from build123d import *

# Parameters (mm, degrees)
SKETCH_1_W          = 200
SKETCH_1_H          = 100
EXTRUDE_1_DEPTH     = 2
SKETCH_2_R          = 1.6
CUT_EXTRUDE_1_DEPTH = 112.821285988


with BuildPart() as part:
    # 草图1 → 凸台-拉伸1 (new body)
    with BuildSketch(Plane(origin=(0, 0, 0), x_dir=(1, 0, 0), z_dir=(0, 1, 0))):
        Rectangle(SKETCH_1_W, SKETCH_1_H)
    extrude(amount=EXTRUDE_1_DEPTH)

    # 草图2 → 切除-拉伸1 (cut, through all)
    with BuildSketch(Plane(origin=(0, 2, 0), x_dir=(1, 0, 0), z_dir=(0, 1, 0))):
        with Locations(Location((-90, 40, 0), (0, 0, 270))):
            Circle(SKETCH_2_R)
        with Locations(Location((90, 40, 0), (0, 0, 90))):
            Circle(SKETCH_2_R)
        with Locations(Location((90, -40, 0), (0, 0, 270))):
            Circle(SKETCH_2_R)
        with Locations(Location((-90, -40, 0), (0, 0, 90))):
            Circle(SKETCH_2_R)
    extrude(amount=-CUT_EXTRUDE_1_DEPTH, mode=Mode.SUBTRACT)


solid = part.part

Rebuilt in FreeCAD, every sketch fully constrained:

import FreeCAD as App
import Part
import Sketcher

V = App.Vector
Q = App.Units.Quantity

doc = App.newDocument("Part")
body = doc.addObject("PartDesign::Body", "Body")

sketch1 = body.newObject("Sketcher::SketchObject", "Sketch")
sketch1.AttachmentSupport = (doc.getObject("XZ_Plane"), [""])
sketch1.MapMode = "FlatFace"
sketch1.addGeometry(Part.LineSegment(V(-100, -50, 0), V(-100, 50, 0)), False)
sketch1.addGeometry(Part.LineSegment(V(-100, 50, 0), V(100, 50, 0)), False)
sketch1.addGeometry(Part.LineSegment(V(100, 50, 0), V(100, -50, 0)), False)
sketch1.addGeometry(Part.LineSegment(V(100, -50, 0), V(-100, -50, 0)), False)
sketch1.addConstraint(Sketcher.Constraint("Coincident", 0, 2, 1, 1))
sketch1.addConstraint(Sketcher.Constraint("Coincident", 1, 2, 2, 1))
sketch1.addConstraint(Sketcher.Constraint("Coincident", 2, 2, 3, 1))
sketch1.addConstraint(Sketcher.Constraint("Coincident", 3, 2, 0, 1))
sketch1.addConstraint(Sketcher.Constraint("Vertical", 0))
sketch1.addConstraint(Sketcher.Constraint("Horizontal", 1))
sketch1.addConstraint(Sketcher.Constraint("Vertical", 2))
sketch1.addConstraint(Sketcher.Constraint("Horizontal", 3))
sketch1.addConstraint(Sketcher.Constraint("Symmetric", 0, 2, 2, 2, -1, 1))
sketch1.addConstraint(Sketcher.Constraint("DistanceX", 1, 1, 1, 2, Q("200 mm")))
sketch1.addConstraint(Sketcher.Constraint("DistanceY", 0, 1, 0, 2, Q("100 mm")))
pad1 = body.newObject("PartDesign::Pad", "Pad")
pad1.Profile = sketch1
pad1.Length = 2
pad1.Reversed = True

sketch2 = body.newObject("Sketcher::SketchObject", "Sketch001")
sketch2.AttachmentSupport = (doc.getObject("XZ_Plane"), [""])
sketch2.MapMode = "FlatFace"
sketch2.AttachmentOffset = App.Placement(V(0, 0, -2), App.Rotation())
sketch2.addGeometry(Part.Circle(V(-90, -40, 0), V(0, 0, 1), 1.6), False)
sketch2.addGeometry(Part.Circle(V(90, -40, 0), V(0, 0, 1), 1.6), False)
sketch2.addGeometry(Part.Circle(V(90, 40, 0), V(0, 0, 1), 1.6), False)
sketch2.addGeometry(Part.Circle(V(-90, 40, 0), V(0, 0, 1), 1.6), False)
sketch2.addConstraint(Sketcher.Constraint("Equal", 0, 1))
sketch2.addConstraint(Sketcher.Constraint("Equal", 1, 2))
sketch2.addConstraint(Sketcher.Constraint("Equal", 2, 3))
sketch2.addConstraint(Sketcher.Constraint("Symmetric", 0, 3, 2, 3, -1, 1))
sketch2.addConstraint(Sketcher.Constraint("Symmetric", 1, 3, 3, 3, -1, 1))
sketch2.addConstraint(Sketcher.Constraint("Symmetric", 0, 3, 1, 3, -2))
sketch2.addConstraint(Sketcher.Constraint("Diameter", 0, Q("3.2 mm")))
sketch2.addConstraint(Sketcher.Constraint("DistanceX", 0, 3, -1, 1, Q("90 mm")))
sketch2.addConstraint(Sketcher.Constraint("DistanceY", 0, 3, -1, 1, Q("40 mm")))
pocket1 = body.newObject("PartDesign::Pocket", "Pocket")
pocket1.Profile = sketch2
pocket1.Type = "ThroughAll"
pocket1.Reversed = True

doc.recompute()
